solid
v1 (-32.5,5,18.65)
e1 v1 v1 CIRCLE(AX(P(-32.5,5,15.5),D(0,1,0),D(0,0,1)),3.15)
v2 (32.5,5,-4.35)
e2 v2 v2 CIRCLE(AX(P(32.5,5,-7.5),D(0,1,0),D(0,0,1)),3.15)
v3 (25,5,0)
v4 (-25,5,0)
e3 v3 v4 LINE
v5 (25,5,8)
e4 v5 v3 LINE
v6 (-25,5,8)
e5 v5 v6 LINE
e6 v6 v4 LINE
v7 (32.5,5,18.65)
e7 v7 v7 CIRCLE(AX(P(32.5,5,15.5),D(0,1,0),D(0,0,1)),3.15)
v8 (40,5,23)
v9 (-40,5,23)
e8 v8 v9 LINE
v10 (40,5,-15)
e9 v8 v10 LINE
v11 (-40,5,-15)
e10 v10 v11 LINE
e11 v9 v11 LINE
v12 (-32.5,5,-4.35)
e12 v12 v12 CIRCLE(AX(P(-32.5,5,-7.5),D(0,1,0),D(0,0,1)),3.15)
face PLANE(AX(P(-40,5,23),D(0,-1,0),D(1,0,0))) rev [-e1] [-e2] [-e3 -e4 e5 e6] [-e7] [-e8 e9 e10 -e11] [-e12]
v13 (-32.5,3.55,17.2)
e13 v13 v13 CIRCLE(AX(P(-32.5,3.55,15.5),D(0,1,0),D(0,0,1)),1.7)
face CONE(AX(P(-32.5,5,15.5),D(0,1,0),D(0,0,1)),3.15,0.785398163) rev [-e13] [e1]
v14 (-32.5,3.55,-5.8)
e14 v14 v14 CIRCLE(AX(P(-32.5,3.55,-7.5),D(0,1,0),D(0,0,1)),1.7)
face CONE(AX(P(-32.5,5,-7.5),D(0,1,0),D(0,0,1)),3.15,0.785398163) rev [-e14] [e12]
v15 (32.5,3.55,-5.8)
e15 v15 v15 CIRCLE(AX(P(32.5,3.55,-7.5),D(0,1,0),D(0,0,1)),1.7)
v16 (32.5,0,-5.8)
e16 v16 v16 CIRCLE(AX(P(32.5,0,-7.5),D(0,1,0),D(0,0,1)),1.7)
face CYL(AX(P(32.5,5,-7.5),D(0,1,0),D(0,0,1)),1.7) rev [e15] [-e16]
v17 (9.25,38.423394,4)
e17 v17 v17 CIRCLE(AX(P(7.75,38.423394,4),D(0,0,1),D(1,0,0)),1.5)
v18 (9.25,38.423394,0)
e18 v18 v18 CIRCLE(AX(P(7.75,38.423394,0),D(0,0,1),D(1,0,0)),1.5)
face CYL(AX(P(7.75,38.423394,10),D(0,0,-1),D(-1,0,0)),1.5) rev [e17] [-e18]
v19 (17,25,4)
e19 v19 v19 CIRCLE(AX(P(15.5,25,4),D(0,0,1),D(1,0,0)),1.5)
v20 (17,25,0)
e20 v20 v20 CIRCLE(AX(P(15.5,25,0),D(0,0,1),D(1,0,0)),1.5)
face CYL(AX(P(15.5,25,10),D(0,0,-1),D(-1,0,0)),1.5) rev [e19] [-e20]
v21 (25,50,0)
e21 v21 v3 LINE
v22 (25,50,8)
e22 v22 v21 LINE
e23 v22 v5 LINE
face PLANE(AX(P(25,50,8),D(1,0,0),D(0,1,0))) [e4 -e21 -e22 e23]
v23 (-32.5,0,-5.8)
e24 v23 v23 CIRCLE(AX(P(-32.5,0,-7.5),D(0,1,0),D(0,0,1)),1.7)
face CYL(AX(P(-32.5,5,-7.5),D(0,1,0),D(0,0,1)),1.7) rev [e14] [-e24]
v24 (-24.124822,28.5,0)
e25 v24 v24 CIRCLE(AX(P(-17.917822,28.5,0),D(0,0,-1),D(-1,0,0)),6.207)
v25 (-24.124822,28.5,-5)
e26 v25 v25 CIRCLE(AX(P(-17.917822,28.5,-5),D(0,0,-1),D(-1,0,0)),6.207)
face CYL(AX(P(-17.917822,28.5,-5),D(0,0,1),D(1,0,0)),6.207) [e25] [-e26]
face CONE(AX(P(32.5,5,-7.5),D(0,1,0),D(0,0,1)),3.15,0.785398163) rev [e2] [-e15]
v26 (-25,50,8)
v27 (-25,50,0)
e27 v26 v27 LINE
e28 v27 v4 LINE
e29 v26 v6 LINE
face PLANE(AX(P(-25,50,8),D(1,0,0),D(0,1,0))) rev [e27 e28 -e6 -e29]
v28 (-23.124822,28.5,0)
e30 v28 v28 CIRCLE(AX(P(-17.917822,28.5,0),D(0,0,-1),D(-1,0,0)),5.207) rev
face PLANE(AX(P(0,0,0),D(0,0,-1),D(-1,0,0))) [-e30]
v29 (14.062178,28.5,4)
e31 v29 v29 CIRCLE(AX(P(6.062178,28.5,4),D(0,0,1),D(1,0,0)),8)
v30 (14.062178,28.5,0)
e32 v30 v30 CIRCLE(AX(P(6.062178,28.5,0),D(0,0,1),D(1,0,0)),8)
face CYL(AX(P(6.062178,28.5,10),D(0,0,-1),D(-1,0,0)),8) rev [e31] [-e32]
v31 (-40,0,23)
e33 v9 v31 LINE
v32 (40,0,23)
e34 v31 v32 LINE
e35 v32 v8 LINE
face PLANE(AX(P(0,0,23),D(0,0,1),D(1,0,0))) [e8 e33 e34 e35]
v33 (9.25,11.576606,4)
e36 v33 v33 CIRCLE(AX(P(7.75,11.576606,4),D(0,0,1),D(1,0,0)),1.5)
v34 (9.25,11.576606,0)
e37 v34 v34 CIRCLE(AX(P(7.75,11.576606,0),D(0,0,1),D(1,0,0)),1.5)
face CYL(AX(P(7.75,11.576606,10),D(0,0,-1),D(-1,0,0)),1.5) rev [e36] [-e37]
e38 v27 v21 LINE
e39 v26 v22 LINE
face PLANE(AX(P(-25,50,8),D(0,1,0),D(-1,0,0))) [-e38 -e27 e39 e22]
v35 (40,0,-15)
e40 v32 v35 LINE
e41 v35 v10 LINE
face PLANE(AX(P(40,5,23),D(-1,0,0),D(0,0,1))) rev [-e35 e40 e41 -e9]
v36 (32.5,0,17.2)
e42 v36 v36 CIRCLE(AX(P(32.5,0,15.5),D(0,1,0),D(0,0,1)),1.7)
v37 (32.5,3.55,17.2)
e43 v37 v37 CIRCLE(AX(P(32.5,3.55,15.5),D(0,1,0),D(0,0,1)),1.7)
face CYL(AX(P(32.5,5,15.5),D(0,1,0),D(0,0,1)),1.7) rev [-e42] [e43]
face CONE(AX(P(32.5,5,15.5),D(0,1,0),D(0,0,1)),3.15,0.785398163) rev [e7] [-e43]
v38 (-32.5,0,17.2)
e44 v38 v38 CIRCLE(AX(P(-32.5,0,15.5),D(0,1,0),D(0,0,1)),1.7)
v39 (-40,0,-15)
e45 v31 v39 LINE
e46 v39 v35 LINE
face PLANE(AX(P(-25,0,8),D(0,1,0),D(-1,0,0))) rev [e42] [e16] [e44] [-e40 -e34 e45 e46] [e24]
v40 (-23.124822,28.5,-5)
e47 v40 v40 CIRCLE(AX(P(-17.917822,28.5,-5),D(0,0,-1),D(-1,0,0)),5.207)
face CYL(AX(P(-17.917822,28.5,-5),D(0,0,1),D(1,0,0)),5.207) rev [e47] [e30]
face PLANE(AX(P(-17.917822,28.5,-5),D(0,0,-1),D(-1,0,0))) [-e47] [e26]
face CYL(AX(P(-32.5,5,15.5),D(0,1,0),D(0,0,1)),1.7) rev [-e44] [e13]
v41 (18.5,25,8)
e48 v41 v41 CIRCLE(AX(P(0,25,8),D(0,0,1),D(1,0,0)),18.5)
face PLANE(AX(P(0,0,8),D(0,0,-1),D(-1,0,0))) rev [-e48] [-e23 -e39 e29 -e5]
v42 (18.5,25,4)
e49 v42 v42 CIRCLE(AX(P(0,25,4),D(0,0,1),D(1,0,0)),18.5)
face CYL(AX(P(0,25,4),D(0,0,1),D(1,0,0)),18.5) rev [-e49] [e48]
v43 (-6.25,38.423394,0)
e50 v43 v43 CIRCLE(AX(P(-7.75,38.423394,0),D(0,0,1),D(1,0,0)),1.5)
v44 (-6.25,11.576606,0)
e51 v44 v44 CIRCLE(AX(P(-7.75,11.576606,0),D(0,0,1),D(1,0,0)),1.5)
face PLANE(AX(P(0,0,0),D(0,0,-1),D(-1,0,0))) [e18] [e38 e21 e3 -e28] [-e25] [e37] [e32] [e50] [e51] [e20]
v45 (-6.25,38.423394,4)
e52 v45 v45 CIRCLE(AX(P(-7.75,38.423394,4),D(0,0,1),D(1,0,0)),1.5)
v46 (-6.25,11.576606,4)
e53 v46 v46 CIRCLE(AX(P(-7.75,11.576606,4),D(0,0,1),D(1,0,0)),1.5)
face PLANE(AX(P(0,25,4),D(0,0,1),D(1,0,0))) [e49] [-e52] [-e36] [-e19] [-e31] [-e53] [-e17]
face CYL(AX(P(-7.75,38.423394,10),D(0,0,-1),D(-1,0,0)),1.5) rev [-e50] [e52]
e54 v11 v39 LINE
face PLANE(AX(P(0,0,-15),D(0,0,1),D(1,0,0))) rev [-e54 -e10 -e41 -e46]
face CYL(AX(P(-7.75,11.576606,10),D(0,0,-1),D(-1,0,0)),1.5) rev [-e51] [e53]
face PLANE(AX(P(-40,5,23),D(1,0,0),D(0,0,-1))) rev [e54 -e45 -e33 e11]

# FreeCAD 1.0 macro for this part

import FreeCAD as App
import Part
import Sketcher

V = App.Vector

doc = App.newDocument("Part")
body = doc.addObject("PartDesign::Body", "Body")

sketch1 = body.newObject("Sketcher::SketchObject", "Sketch")
sketch1.AttachmentSupport = (doc.getObject("XY_Plane"), [""])
sketch1.MapMode = "FlatFace"
sketch1.addGeometry(Part.LineSegment(V(-25, 50, 0), V(-25, 0, 0)), False)
sketch1.addGeometry(Part.LineSegment(V(-25, 0, 0), V(25, 0, 0)), False)
sketch1.addGeometry(Part.LineSegment(V(25, 0, 0), V(25, 50, 0)), False)
sketch1.addGeometry(Part.LineSegment(V(25, 50, 0), V(-25, 50, 0)), False)
sketch1.addConstraint(Sketcher.Constraint("Coincident", 0, 2, 1, 1))
sketch1.addConstraint(Sketcher.Constraint("Coincident", 1, 2, 2, 1))
sketch1.addConstraint(Sketcher.Constraint("Coincident", 2, 2, 3, 1))
sketch1.addConstraint(Sketcher.Constraint("Coincident", 3, 2, 0, 1))
sketch1.addConstraint(Sketcher.Constraint("Vertical", 0))
sketch1.addConstraint(Sketcher.Constraint("Horizontal", 1))
sketch1.addConstraint(Sketcher.Constraint("Vertical", 2))
sketch1.addConstraint(Sketcher.Constraint("Horizontal", 3))
sketch1.addConstraint(Sketcher.Constraint("Symmetric", 0, 2, 1, 2, -1, 1))
sketch1.addConstraint(Sketcher.Constraint("Equal", 3, 0))
sketch1.addConstraint(Sketcher.Constraint("DistanceX", 1, 1, 1, 2, 50.0))
pad1 = body.newObject("PartDesign::Pad", "Pad")
pad1.Profile = sketch1
pad1.Length = 8

sketch2 = body.newObject("Sketcher::SketchObject", "Sketch001")
sketch2.AttachmentSupport = (doc.getObject("XY_Plane"), [""])
sketch2.MapMode = "FlatFace"
sketch2.addGeometry(Part.Circle(V(-7.8, 38.4, 0), V(0, 0, 1), 1.5), False)
sketch2.addGeometry(Part.Circle(V(7.8, 38.4, 0), V(0, 0, 1), 1.5), False)
sketch2.addGeometry(Part.Circle(V(-7.8, 11.6, 0), V(0, 0, 1), 1.5), False)
sketch2.addGeometry(Part.Circle(V(7.8, 11.6, 0), V(0, 0, 1), 1.5), False)
sketch2.addGeometry(Part.Circle(V(15.5, 25, 0), V(0, 0, 1), 1.5), False)
sketch2.addGeometry(Part.Circle(V(6.1, 28.5, 0), V(0, 0, 1), 8), False)
sketch2.addConstraint(Sketcher.Constraint("Equal", 0, 1))
sketch2.addConstraint(Sketcher.Constraint("Equal", 1, 2))
sketch2.addConstraint(Sketcher.Constraint("Equal", 2, 3))
sketch2.addConstraint(Sketcher.Constraint("Equal", 3, 4))
sketch2.addConstraint(Sketcher.Constraint("Symmetric", 0, 3, 1, 3, -2))
sketch2.addConstraint(Sketcher.Constraint("Symmetric", 2, 3, 3, 3, -2))
sketch2.addConstraint(Sketcher.Constraint("Vertical", 0, 3, 2, 3))
sketch2.addConstraint(Sketcher.Constraint("Diameter", 0, 3.0))
sketch2.addConstraint(Sketcher.Constraint("Diameter", 5, 16.0))
sketch2.addConstraint(Sketcher.Constraint("DistanceY", -1, 1, 4, 3, 25.0))
sketch2.addConstraint(Sketcher.Constraint("DistanceX", -1, 1, 4, 3, 15.5))
sketch2.addConstraint(Sketcher.Constraint("DistanceY", -1, 1, 5, 3, 28.5))
sketch2.addConstraint(Sketcher.Constraint("DistanceX", 0, 3, 1, 3, 15.5))
sketch2.addConstraint(Sketcher.Constraint("DistanceY", -1, 1, 0, 3, 38.423394))
sketch2.addConstraint(Sketcher.Constraint("DistanceY", -1, 1, 2, 3, 11.576606))
sketch2.addConstraint(Sketcher.Constraint("DistanceX", -1, 1, 5, 3, 6.062178))
pocket1 = body.newObject("PartDesign::Pocket", "Pocket")
pocket1.Profile = sketch2
pocket1.Length = 10
pocket1.Reversed = True

sketch3 = body.newObject("Sketcher::SketchObject", "Sketch002")
sketch3.AttachmentSupport = (doc.getObject("XY_Plane"), [""])
sketch3.MapMode = "FlatFace"
sketch3.AttachmentOffset = App.Placement(V(0, 0, 8), App.Rotation())
sketch3.addGeometry(Part.Circle(V(0, 25, 0), V(0, 0, 1), 18), False)
sketch3.addConstraint(Sketcher.Constraint("PointOnObject", 0, 3, -2))
sketch3.addConstraint(Sketcher.Constraint("Diameter", 0, 37.0))
sketch3.addConstraint(Sketcher.Constraint("DistanceY", -1, 1, 0, 3, 25.0))
pocket2 = body.newObject("PartDesign::Pocket", "Pocket001")
pocket2.Profile = sketch3
pocket2.Length = 4

sketch4 = body.newObject("Sketcher::SketchObject", "Sketch003")
sketch4.AttachmentSupport = (doc.getObject("XY_Plane"), [""])
sketch4.MapMode = "FlatFace"
sketch4.AttachmentOffset = App.Placement(V(0, 0, 8), App.Rotation())
sketch4.addGeometry(Part.LineSegment(V(-40, 5, 0), V(-40, 0, 0)), False)
sketch4.addGeometry(Part.LineSegment(V(-40, 0, 0), V(40, 0, 0)), False)
sketch4.addGeometry(Part.LineSegment(V(40, 0, 0), V(40, 5, 0)), False)
sketch4.addGeometry(Part.LineSegment(V(40, 5, 0), V(-40, 5, 0)), False)
sketch4.addConstraint(Sketcher.Constraint("Coincident", 0, 2, 1, 1))
sketch4.addConstraint(Sketcher.Constraint("Coincident", 1, 2, 2, 1))
sketch4.addConstraint(Sketcher.Constraint("Coincident", 2, 2, 3, 1))
sketch4.addConstraint(Sketcher.Constraint("Coincident", 3, 2, 0, 1))
sketch4.addConstraint(Sketcher.Constraint("Vertical", 0))
sketch4.addConstraint(Sketcher.Constraint("Horizontal", 1))
sketch4.addConstraint(Sketcher.Constraint("Vertical", 2))
sketch4.addConstraint(Sketcher.Constraint("Horizontal", 3))
sketch4.addConstraint(Sketcher.Constraint("Symmetric", 0, 2, 1, 2, -1, 1))
sketch4.addConstraint(Sketcher.Constraint("DistanceX", 1, 1, 1, 2, 80.0))
sketch4.addConstraint(Sketcher.Constraint("DistanceY", 0, 2, 0, 1, 5.0))
pad2 = body.newObject("PartDesign::Pad", "Pad001")
pad2.Profile = sketch4
pad2.Type = "TwoLengths"
pad2.Length = 15
pad2.Length2 = 23

sketch5 = body.newObject("Sketcher::SketchObject", "Sketch004")
sketch5.AttachmentSupport = (doc.getObject("XZ_Plane"), [""])
sketch5.MapMode = "FlatFace"
sketch5.AttachmentOffset = App.Placement(V(0, 0, -5), App.Rotation())
sketch5.addGeometry(Part.Circle(V(-32.5, -7.5, 0), V(0, 0, 1), 1.7), False)
sketch5.addGeometry(Part.Circle(V(-32.5, 15.5, 0), V(0, 0, 1), 1.7), False)
sketch5.addGeometry(Part.Circle(V(32.5, 15.5, 0), V(0, 0, 1), 1.7), False)
sketch5.addGeometry(Part.Circle(V(32.5, -7.5, 0), V(0, 0, 1), 1.7), False)
sketch5.addConstraint(Sketcher.Constraint("Equal", 0, 1))
sketch5.addConstraint(Sketcher.Constraint("Equal", 1, 2))
sketch5.addConstraint(Sketcher.Constraint("Equal", 2, 3))
sketch5.addConstraint(Sketcher.Constraint("Symmetric", 1, 3, 2, 3, -2))
sketch5.addConstraint(Sketcher.Constraint("Symmetric", 0, 3, 3, 3, -2))
sketch5.addConstraint(Sketcher.Constraint("Vertical", 0, 3, 1, 3))
sketch5.addConstraint(Sketcher.Constraint("Diameter", 0, 3.4))
sketch5.addConstraint(Sketcher.Constraint("DistanceY", 0, 3, 1, 3, 23.0))
sketch5.addConstraint(Sketcher.Constraint("DistanceX", 1, 3, 2, 3, 65.0))
sketch5.addConstraint(Sketcher.Constraint("DistanceY", 0, 3, -1, 1, 7.5))
doc.recompute()
hole = body.newObject("PartDesign::Hole", "Hole")
hole.Profile = sketch5
hole.ThreadType = "None"
hole.Diameter = 3.4
hole.DepthType = "ThroughAll"
hole.HoleCutType = "Countersink"
hole.HoleCutDiameter = 6.3
hole.HoleCutCountersinkAngle = 90
hole.Reversed = True

sketch6 = body.newObject("Sketcher::SketchObject", "Sketch005")
sketch6.AttachmentSupport = (doc.getObject("XY_Plane"), [""])
sketch6.MapMode = "FlatFace"
sketch6.addGeometry(Part.Circle(V(-18, 28, 0), V(0, 0, 1), 6), False)
sketch6.addGeometry(Part.Circle(V(-18, 28, 0), V(0, 0, 1), 5), False)
sketch6.addConstraint(Sketcher.Constraint("Coincident", 1, 3, 0, 3))
sketch6.addConstraint(Sketcher.Constraint("Diameter", 0, 12.414))
sketch6.addConstraint(Sketcher.Constraint("Diameter", 1, 10.414))
sketch6.addConstraint(Sketcher.Constraint("DistanceY", -1, 1, 0, 3, 28.5))
sketch6.addConstraint(Sketcher.Constraint("DistanceX", 0, 3, -1, 1, 17.917822))
pad3 = body.newObject("PartDesign::Pad", "Pad002")
pad3.Profile = sketch6
pad3.Length = 5
pad3.Reversed = True

doc.recompute()
